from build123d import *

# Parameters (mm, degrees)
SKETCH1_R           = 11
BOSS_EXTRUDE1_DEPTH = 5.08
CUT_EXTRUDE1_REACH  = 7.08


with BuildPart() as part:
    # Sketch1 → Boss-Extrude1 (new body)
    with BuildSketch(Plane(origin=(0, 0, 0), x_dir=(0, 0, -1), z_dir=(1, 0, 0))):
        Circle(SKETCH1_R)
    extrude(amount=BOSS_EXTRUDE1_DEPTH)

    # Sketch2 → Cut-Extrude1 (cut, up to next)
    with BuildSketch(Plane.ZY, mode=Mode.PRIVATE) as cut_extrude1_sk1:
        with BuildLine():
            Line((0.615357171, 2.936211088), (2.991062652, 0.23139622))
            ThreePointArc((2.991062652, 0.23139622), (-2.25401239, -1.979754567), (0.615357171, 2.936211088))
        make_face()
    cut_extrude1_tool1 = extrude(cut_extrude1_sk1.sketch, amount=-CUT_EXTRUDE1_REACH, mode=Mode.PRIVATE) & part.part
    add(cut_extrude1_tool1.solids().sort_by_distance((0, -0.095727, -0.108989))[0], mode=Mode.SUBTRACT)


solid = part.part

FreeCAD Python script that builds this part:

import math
import FreeCAD as App
import Part
import Sketcher

doc = App.newDocument("Part")
body = doc.addObject("PartDesign::Body", "Body")

sketch1 = doc.addObject("Sketcher::SketchObject", "Sketch")
body.addObject(sketch1)
sketch1.AttachmentSupport = (doc.YZ_Plane, [""])
sketch1.MapMode = "FlatFace"
sketch1.addGeometry(Part.Circle(App.Vector(0, 0, 0), App.Vector(0, 0, 1), 11), False)
sketch1.addConstraint([
    Sketcher.Constraint("Coincident", 0, 3, -1, 1),
    Sketcher.Constraint("Diameter", 0, 22.0),
])
pad1 = doc.addObject("PartDesign::Pad", "Pad")
body.addObject(pad1)
pad1.Profile = sketch1
pad1.Length = 5.08

sketch2 = doc.addObject("Sketcher::SketchObject", "Sketch001")
body.addObject(sketch2)
sketch2.AttachmentSupport = (doc.YZ_Plane, [""])
sketch2.MapMode = "FlatFace"
sketch2.addGeometry([
    Part.LineSegment(App.Vector(0.2, 3, 0), App.Vector(2.9, 0.6, 0)),
    Part.ArcOfCircle(Part.Circle(App.Vector(0, 0, 0), App.Vector(0, 0, 1), 3), math.radians(86), math.radians(372)),
], False)
sketch2.addConstraint([
    Sketcher.Constraint("Coincident", 0, 1, 1, 1),
    Sketcher.Constraint("Coincident", 1, 2, 0, 2),
    Sketcher.Constraint("Coincident", 1, 3, -1, 1),
    Sketcher.Constraint("Radius", 1, 3.0),
    Sketcher.Constraint("Distance", 0, 3.6),
    Sketcher.Constraint("DistanceX", -1, 1, 1, 2, 2.936211),
])
pocket1 = doc.addObject("PartDesign::Pocket", "Pocket")
body.addObject(pocket1)
pocket1.Profile = sketch2
pocket1.Type = "UpToFirst"
pocket1.Reversed = True

doc.recompute()
